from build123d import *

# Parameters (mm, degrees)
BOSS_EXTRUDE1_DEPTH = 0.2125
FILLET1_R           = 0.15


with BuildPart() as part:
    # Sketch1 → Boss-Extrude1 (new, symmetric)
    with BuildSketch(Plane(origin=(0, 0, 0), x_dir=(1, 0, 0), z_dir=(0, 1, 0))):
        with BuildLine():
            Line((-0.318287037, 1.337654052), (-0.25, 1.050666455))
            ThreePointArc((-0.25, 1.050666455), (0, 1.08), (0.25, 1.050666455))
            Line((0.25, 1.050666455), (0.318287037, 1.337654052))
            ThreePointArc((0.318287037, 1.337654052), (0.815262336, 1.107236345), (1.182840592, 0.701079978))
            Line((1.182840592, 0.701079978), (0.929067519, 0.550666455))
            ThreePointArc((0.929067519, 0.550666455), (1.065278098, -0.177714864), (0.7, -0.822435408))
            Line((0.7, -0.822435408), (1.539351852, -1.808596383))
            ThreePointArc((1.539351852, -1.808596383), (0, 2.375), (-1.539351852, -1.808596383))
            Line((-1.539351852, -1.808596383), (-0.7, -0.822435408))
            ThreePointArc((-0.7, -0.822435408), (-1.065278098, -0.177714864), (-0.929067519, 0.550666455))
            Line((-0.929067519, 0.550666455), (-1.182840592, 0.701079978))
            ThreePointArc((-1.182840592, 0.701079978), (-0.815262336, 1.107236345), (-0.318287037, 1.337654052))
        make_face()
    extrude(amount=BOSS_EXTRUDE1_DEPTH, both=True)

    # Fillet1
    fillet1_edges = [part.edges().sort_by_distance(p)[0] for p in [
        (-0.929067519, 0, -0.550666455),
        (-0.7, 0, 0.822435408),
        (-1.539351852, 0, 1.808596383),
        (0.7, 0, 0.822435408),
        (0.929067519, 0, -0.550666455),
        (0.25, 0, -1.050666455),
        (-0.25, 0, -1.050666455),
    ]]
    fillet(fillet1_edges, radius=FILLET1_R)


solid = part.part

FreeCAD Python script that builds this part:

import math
import FreeCAD as App
import Part
import Sketcher
from FreeCAD import Vector


def edges_at(feature, points):
    """Names of the edges that pass closest to the given points."""
    edges = feature.Shape.Edges
    near = lambda p: min(range(len(edges)), key=lambda i: edges[i].distToShape(Part.Vertex(*p))[0])
    return sorted({f"Edge{near(p) + 1}" for p in points})

doc = App.newDocument("Part")
params = doc.addObject("Spreadsheet::Sheet", "Params")
for row, (alias, value) in enumerate([
    ("sketch1_radius", "1.08 mm"),
    ("pad1_length", "0.425 mm"),
    ("fillet_radius", "0.15 mm"),
], start=1):
    params.set(f"A{row}", alias)
    params.set(f"B{row}", "=" + value)
    params.setAlias(f"B{row}", alias)

body = doc.addObject("PartDesign::Body", "Body")

# Sketch on XZ plane
sketch1 = body.newObject("Sketcher::SketchObject", "Sketch")
sketch1.AttachmentSupport = (doc.getObject("XZ_Plane"), [""])
sketch1.MapMode = "FlatFace"
sketch1.addGeometry(Part.LineSegment(Vector(-0.32, -1.34, 0), Vector(-0.25, -1.05, 0)), False)
sketch1.addGeometry(Part.ArcOfCircle(Part.Circle(Vector(0, 0, 0), Vector(0, 0, 1), 1.08), math.radians(-103), math.radians(-77)), False)
sketch1.addGeometry(Part.LineSegment(Vector(0.25, -1.05, 0), Vector(0.32, -1.34, 0)), False)
sketch1.addGeometry(Part.ArcOfCircle(Part.Circle(Vector(0, 0, 0), Vector(0, 0, 1), 1.38), math.radians(-77), math.radians(-31)), False)
sketch1.addGeometry(Part.LineSegment(Vector(1.18, -0.7, 0), Vector(0.93, -0.55, 0)), False)
sketch1.addGeometry(Part.ArcOfCircle(Part.Circle(Vector(0, 0, 0), Vector(0, 0, 1), 1.08), math.radians(-31), math.radians(50)), False)
sketch1.addGeometry(Part.LineSegment(Vector(0.7, 0.82, 0), Vector(1.54, 1.81, 0)), False)
sketch1.addGeometry(Part.ArcOfCircle(Part.Circle(Vector(0, 0, 0), Vector(0, 0, 1), 2.38), math.radians(130), math.radians(410)), False)
sketch1.addGeometry(Part.LineSegment(Vector(-1.54, 1.81, 0), Vector(-0.7, 0.82, 0)), False)
sketch1.addGeometry(Part.ArcOfCircle(Part.Circle(Vector(0, 0, 0), Vector(0, 0, 1), 1.08), math.radians(130), math.radians(211)), False)
sketch1.addGeometry(Part.LineSegment(Vector(-0.93, -0.55, 0), Vector(-1.18, -0.7, 0)), False)
sketch1.addGeometry(Part.ArcOfCircle(Part.Circle(Vector(0, 0, 0), Vector(0, 0, 1), 1.38), math.radians(-149), math.radians(-103)), False)
sketch1.addConstraint(Sketcher.Constraint("Coincident", 0, 2, 1, 1))
sketch1.addConstraint(Sketcher.Constraint("Coincident", 1, 2, 2, 1))
sketch1.addConstraint(Sketcher.Constraint("Coincident", 2, 2, 3, 1))
sketch1.addConstraint(Sketcher.Constraint("Coincident", 3, 2, 4, 1))
sketch1.addConstraint(Sketcher.Constraint("Coincident", 4, 2, 5, 1))
sketch1.addConstraint(Sketcher.Constraint("Coincident", 5, 2, 6, 1))
sketch1.addConstraint(Sketcher.Constraint("Coincident", 6, 2, 7, 2))
sketch1.addConstraint(Sketcher.Constraint("Coincident", 7, 1, 8, 1))
sketch1.addConstraint(Sketcher.Constraint("Coincident", 8, 2, 9, 1))
sketch1.addConstraint(Sketcher.Constraint("Coincident", 9, 2, 10, 1))
sketch1.addConstraint(Sketcher.Constraint("Coincident", 10, 2, 11, 1))
sketch1.addConstraint(Sketcher.Constraint("Coincident", 11, 2, 0, 1))
sketch1.addConstraint(Sketcher.Constraint("Coincident", 1, 3, -1, 1))
sketch1.addConstraint(Sketcher.Constraint("Coincident", 3, 3, -1, 1))
sketch1.addConstraint(Sketcher.Constraint("Coincident", 5, 3, -1, 1))
sketch1.addConstraint(Sketcher.Constraint("Coincident", 7, 3, -1, 1))
sketch1.addConstraint(Sketcher.Constraint("Coincident", 9, 3, -1, 1))
sketch1.addConstraint(Sketcher.Constraint("Coincident", 11, 3, -1, 1))
sketch1.addConstraint(Sketcher.Constraint("Equal", 1, 5))
sketch1.addConstraint(Sketcher.Constraint("Equal", 5, 9))
sketch1.addConstraint(Sketcher.Constraint("Equal", 3, 11))
sketch1.addConstraint(Sketcher.Constraint("Horizontal", 0, 2, 1, 2))
sketch1.addConstraint(Sketcher.Constraint("Horizontal", 6, 2, 7, 1))
sketch1.addConstraint(Sketcher.Constraint("Horizontal", 5, 2, 8, 2))
sketch1.addConstraint(Sketcher.Constraint("Horizontal", 4, 2, 9, 2))
sketch1.addConstraint(Sketcher.Constraint("Horizontal", 3, 2, 10, 2))
sketch1.addConstraint(Sketcher.Constraint("Horizontal", 2, 2, 11, 2))
sketch1.addConstraint(Sketcher.Constraint("Radius", 1, 1.08))
sketch1.addConstraint(Sketcher.Constraint("Radius", 3, 1.375))
sketch1.addConstraint(Sketcher.Constraint("Radius", 7, 2.375))
sketch1.addConstraint(Sketcher.Constraint("DistanceX", -1, 1, 5, 2, 0.7))
sketch1.addConstraint(Sketcher.Constraint("DistanceX", 0, 2, 1, 2, 0.5))
sketch1.addConstraint(Sketcher.Constraint("DistanceY", 1, 2, 4, 2, 0.5))
sketch1.addConstraint(Sketcher.Constraint("DistanceX", -1, 1, 3, 2, 1.182841))
sketch1.addConstraint(Sketcher.Constraint("DistanceX", -1, 1, 6, 2, 1.539352))
sketch1.addConstraint(Sketcher.Constraint("DistanceX", 2, 2, 4, 2, 0.61078))
sketch1.setExpression("Constraints[27]", "Params.sketch1_radius")
pad1 = body.newObject("PartDesign::Pad", "Pad")
pad1.Profile = sketch1
pad1.setExpression("Length", "Params.pad1_length")
pad1.Midplane = True
doc.recompute()

fillet = body.newObject("PartDesign::Fillet", "Fillet")
fillet.Base = (pad1, edges_at(pad1, [
    (-0.929, 0, -0.551),
    (-0.7, 0, 0.822),
    (-1.539, 0, 1.809),
    (0.7, 0, 0.822),
    (0.929, 0, -0.551),
    (0.25, 0, -1.051),
    (-0.25, 0, -1.051),
]))
fillet.setExpression("Radius", "Params.fillet_radius")

doc.recompute()
